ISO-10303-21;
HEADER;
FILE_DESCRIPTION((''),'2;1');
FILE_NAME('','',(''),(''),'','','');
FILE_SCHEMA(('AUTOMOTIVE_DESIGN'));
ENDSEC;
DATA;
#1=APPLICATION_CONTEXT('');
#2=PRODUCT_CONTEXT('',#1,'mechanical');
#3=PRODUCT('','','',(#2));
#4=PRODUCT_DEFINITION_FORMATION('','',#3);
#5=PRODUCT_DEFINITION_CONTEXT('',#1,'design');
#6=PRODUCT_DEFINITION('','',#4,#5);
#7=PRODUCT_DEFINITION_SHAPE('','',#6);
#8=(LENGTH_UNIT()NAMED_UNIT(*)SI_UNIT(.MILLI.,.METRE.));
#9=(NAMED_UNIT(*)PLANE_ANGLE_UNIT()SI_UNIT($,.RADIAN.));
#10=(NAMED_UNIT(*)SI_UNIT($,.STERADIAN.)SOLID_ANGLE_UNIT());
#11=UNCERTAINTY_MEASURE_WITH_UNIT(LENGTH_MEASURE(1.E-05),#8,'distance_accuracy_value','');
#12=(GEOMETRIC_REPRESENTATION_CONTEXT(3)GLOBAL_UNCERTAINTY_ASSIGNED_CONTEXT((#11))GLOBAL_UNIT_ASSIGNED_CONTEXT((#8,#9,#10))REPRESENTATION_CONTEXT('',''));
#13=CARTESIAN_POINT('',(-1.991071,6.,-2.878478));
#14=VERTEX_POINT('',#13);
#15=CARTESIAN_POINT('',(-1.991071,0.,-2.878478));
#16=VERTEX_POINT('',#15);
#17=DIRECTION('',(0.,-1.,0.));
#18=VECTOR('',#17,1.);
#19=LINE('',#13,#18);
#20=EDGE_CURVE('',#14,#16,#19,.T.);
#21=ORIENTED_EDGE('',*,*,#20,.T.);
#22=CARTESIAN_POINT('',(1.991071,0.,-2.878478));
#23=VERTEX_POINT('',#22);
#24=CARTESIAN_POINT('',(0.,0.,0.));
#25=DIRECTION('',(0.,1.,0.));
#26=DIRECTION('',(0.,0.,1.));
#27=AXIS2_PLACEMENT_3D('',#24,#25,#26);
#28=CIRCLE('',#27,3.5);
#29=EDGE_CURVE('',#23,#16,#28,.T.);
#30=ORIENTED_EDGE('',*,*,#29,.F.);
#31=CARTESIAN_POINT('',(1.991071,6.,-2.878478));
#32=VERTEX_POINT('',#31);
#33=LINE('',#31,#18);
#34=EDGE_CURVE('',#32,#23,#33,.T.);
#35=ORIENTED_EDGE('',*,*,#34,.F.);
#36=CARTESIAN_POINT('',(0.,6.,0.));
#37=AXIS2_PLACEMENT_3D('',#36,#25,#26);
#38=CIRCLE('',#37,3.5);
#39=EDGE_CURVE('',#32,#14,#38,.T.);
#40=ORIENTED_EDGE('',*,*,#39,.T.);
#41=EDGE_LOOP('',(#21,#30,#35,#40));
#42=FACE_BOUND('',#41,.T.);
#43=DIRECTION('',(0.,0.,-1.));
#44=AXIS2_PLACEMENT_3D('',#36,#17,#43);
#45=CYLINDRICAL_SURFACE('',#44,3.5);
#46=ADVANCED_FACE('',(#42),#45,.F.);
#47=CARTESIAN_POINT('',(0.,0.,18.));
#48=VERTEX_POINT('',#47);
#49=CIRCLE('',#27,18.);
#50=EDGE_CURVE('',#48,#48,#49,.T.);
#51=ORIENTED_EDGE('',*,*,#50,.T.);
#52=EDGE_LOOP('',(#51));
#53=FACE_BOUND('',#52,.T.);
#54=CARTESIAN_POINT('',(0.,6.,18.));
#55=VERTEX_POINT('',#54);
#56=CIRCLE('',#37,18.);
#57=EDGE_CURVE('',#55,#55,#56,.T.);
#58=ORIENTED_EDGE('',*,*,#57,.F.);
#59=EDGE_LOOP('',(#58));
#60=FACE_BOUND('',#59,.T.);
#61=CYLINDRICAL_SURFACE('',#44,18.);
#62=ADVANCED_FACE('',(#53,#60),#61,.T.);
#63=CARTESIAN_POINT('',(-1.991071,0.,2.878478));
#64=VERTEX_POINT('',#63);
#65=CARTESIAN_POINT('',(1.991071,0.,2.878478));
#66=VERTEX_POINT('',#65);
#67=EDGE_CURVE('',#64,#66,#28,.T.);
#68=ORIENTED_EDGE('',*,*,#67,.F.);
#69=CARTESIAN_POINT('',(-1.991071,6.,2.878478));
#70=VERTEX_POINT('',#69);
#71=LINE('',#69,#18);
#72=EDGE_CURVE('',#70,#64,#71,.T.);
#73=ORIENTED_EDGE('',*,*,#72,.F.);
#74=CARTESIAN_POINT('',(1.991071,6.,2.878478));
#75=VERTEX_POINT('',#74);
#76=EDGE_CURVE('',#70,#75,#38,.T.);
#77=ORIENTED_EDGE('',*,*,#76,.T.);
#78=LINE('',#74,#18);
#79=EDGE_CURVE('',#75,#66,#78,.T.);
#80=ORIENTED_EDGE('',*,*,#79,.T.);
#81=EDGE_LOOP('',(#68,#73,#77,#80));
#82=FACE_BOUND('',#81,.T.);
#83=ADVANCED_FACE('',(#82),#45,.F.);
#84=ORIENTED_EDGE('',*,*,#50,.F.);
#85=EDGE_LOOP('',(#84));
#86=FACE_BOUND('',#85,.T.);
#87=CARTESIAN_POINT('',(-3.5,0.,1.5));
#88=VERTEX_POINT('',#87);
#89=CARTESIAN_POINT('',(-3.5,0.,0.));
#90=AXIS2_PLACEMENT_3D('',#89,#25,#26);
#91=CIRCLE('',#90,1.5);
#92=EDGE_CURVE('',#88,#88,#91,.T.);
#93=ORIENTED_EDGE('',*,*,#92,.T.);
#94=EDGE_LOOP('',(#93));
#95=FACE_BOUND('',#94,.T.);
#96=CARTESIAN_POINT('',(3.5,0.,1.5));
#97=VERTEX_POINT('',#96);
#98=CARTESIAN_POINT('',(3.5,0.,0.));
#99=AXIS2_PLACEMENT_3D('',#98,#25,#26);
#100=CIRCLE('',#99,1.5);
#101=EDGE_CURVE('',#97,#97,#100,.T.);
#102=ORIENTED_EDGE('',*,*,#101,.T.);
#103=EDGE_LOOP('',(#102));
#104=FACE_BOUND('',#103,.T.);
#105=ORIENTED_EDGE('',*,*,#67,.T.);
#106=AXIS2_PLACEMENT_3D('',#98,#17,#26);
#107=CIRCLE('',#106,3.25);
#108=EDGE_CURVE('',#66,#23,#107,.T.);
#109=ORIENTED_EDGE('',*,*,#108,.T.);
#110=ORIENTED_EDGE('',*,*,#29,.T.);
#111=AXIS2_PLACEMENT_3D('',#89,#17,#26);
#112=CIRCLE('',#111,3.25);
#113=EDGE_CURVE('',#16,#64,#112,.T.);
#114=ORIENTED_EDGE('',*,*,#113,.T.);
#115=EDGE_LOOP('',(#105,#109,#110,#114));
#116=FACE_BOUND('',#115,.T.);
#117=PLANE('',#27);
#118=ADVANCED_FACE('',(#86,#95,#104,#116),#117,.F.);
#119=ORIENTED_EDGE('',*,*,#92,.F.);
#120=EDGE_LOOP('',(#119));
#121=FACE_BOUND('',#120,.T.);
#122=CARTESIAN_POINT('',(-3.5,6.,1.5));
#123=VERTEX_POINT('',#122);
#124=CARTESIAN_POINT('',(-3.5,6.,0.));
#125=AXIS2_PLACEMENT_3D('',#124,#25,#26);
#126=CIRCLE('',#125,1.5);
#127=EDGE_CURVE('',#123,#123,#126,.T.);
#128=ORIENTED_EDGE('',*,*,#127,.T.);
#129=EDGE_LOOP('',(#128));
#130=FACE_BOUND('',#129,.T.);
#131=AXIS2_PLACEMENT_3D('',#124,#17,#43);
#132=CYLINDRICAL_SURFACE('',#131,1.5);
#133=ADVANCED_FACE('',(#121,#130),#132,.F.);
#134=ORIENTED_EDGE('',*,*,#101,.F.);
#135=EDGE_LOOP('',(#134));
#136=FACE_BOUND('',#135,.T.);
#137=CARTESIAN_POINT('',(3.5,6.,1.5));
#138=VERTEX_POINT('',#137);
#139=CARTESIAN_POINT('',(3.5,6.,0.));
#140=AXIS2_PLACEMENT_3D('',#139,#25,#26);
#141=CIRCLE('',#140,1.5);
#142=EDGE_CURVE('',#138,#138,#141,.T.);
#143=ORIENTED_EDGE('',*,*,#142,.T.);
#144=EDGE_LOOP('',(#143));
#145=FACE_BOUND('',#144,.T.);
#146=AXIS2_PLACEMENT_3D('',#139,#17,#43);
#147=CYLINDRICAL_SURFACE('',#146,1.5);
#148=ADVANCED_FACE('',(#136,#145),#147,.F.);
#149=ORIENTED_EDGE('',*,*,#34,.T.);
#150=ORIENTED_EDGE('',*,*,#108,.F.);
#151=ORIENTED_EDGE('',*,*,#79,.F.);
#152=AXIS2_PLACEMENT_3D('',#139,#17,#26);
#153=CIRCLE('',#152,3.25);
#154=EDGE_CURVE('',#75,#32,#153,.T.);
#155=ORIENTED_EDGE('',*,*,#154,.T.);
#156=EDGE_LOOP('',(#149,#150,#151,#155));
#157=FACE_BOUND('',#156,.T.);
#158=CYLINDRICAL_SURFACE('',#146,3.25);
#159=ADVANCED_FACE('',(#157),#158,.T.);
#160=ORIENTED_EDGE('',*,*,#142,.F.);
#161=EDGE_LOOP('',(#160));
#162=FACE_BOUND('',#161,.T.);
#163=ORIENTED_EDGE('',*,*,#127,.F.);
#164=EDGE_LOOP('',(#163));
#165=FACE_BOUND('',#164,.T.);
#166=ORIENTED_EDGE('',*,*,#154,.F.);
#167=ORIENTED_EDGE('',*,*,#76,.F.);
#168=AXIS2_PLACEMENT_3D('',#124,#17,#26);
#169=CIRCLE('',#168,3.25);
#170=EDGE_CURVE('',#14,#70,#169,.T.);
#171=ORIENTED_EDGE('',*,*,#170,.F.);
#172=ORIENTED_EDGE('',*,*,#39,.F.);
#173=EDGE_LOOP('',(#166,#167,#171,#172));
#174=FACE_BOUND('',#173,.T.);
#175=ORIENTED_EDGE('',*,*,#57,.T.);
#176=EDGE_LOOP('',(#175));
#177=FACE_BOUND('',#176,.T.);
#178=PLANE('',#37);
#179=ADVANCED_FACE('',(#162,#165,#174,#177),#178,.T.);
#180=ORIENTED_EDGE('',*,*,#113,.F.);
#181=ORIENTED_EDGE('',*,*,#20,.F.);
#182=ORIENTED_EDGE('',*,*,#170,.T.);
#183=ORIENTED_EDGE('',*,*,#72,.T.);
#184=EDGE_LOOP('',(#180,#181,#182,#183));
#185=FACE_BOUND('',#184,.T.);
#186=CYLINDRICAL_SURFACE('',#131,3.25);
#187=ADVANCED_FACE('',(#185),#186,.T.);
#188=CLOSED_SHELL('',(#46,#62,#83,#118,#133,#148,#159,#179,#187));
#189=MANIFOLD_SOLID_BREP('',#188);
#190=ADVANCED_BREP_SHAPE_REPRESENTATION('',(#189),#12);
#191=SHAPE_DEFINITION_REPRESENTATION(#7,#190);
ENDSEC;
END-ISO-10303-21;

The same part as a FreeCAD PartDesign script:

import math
import FreeCAD as App
import Part
import Sketcher
Q = App.Units.Quantity

doc = App.newDocument("Part")
params = doc.addObject("Spreadsheet::Sheet", "Params")
for row, (alias, value) in enumerate([
    ("sketch1_diameter", "36 mm"),
    ("sketch1_diameter2", "3 mm"),
    ("sketch1_radius", "3.5 mm"),
    ("sketch1_radius2", "3.25 mm"),
    ("pad1_length", "6 mm"),
], start=1):
    params.set(f"A{row}", alias)
    params.set(f"B{row}", "=" + value)
    params.setAlias(f"B{row}", alias)

body = doc.addObject("PartDesign::Body", "Body")

# Sketch on XZ plane
sketch1 = body.newObject("Sketcher::SketchObject", "Sketch")
sketch1.AttachmentSupport = (doc.getObject("XZ_Plane"), [""])
sketch1.MapMode = "FlatFace"
sketch1.addGeometry([
    Part.Circle(App.Vector(0, 0, 0), App.Vector(0, 0, 1), 18),  # 0
    Part.Circle(App.Vector(-3.5, 0, 0), App.Vector(0, 0, 1), 1.5),  # 1
    Part.ArcOfCircle(Part.Circle(App.Vector(0, 0, 0), App.Vector(0, 0, 1), 3.5), math.radians(-124.671991), math.radians(-55.328009)),  # 2
    Part.ArcOfCircle(Part.Circle(App.Vector(3.5, 0, 0), App.Vector(0, 0, 1), 3.25), math.radians(117.664004), math.radians(242.335996)),  # 3
    Part.ArcOfCircle(Part.Circle(App.Vector(0, 0, 0), App.Vector(0, 0, 1), 3.5), math.radians(55.328009), math.radians(124.671991)),  # 4
    Part.ArcOfCircle(Part.Circle(App.Vector(-3.5, 0, 0), App.Vector(0, 0, 1), 3.25), math.radians(-62.335996), math.radians(62.335996)),  # 5
    Part.Circle(App.Vector(3.5, 0, 0), App.Vector(0, 0, 1), 1.5),  # 6
], False)
sketch1.addConstraint([
    Sketcher.Constraint("Coincident", 2, 2, 3, 2),
    Sketcher.Constraint("Coincident", 3, 1, 4, 1),
    Sketcher.Constraint("Coincident", 4, 2, 5, 2),
    Sketcher.Constraint("Coincident", 5, 1, 2, 1),
    Sketcher.Constraint("Coincident", 0, 3, -1, 1),
    Sketcher.Constraint("Coincident", 2, 3, -1, 1),
    Sketcher.Constraint("Coincident", 4, 3, -1, 1),
    Sketcher.Constraint("Coincident", 5, 3, 1, 3),
    Sketcher.Constraint("Coincident", 6, 3, 3, 3),
    Sketcher.Constraint("Equal", 2, 4),
    Sketcher.Constraint("Equal", 3, 5),
    Sketcher.Constraint("Equal", 1, 6),
    Sketcher.Constraint("Symmetric", 1, 3, 3, 3, -1, 1),
    Sketcher.Constraint("PointOnObject", 1, 3, -1),
    Sketcher.Constraint("Diameter", 0, Q("36 mm")),
    Sketcher.Constraint("Diameter", 1, Q("3 mm")),
    Sketcher.Constraint("Radius", 2, Q("3.5 mm")),
    Sketcher.Constraint("Radius", 3, Q("3.25 mm")),
    Sketcher.Constraint("DistanceX", 1, 3, 3, 3, Q("7 mm")),
])
sketch1.setExpression("Constraints[14]", "Params.sketch1_diameter")
sketch1.setExpression("Constraints[15]", "Params.sketch1_diameter2")
sketch1.setExpression("Constraints[16]", "Params.sketch1_radius")
sketch1.setExpression("Constraints[17]", "Params.sketch1_radius2")
pad1 = body.newObject("PartDesign::Pad", "Pad")
pad1.Profile = sketch1
pad1.setExpression("Length", "Params.pad1_length")
pad1.Reversed = True

doc.recompute()
